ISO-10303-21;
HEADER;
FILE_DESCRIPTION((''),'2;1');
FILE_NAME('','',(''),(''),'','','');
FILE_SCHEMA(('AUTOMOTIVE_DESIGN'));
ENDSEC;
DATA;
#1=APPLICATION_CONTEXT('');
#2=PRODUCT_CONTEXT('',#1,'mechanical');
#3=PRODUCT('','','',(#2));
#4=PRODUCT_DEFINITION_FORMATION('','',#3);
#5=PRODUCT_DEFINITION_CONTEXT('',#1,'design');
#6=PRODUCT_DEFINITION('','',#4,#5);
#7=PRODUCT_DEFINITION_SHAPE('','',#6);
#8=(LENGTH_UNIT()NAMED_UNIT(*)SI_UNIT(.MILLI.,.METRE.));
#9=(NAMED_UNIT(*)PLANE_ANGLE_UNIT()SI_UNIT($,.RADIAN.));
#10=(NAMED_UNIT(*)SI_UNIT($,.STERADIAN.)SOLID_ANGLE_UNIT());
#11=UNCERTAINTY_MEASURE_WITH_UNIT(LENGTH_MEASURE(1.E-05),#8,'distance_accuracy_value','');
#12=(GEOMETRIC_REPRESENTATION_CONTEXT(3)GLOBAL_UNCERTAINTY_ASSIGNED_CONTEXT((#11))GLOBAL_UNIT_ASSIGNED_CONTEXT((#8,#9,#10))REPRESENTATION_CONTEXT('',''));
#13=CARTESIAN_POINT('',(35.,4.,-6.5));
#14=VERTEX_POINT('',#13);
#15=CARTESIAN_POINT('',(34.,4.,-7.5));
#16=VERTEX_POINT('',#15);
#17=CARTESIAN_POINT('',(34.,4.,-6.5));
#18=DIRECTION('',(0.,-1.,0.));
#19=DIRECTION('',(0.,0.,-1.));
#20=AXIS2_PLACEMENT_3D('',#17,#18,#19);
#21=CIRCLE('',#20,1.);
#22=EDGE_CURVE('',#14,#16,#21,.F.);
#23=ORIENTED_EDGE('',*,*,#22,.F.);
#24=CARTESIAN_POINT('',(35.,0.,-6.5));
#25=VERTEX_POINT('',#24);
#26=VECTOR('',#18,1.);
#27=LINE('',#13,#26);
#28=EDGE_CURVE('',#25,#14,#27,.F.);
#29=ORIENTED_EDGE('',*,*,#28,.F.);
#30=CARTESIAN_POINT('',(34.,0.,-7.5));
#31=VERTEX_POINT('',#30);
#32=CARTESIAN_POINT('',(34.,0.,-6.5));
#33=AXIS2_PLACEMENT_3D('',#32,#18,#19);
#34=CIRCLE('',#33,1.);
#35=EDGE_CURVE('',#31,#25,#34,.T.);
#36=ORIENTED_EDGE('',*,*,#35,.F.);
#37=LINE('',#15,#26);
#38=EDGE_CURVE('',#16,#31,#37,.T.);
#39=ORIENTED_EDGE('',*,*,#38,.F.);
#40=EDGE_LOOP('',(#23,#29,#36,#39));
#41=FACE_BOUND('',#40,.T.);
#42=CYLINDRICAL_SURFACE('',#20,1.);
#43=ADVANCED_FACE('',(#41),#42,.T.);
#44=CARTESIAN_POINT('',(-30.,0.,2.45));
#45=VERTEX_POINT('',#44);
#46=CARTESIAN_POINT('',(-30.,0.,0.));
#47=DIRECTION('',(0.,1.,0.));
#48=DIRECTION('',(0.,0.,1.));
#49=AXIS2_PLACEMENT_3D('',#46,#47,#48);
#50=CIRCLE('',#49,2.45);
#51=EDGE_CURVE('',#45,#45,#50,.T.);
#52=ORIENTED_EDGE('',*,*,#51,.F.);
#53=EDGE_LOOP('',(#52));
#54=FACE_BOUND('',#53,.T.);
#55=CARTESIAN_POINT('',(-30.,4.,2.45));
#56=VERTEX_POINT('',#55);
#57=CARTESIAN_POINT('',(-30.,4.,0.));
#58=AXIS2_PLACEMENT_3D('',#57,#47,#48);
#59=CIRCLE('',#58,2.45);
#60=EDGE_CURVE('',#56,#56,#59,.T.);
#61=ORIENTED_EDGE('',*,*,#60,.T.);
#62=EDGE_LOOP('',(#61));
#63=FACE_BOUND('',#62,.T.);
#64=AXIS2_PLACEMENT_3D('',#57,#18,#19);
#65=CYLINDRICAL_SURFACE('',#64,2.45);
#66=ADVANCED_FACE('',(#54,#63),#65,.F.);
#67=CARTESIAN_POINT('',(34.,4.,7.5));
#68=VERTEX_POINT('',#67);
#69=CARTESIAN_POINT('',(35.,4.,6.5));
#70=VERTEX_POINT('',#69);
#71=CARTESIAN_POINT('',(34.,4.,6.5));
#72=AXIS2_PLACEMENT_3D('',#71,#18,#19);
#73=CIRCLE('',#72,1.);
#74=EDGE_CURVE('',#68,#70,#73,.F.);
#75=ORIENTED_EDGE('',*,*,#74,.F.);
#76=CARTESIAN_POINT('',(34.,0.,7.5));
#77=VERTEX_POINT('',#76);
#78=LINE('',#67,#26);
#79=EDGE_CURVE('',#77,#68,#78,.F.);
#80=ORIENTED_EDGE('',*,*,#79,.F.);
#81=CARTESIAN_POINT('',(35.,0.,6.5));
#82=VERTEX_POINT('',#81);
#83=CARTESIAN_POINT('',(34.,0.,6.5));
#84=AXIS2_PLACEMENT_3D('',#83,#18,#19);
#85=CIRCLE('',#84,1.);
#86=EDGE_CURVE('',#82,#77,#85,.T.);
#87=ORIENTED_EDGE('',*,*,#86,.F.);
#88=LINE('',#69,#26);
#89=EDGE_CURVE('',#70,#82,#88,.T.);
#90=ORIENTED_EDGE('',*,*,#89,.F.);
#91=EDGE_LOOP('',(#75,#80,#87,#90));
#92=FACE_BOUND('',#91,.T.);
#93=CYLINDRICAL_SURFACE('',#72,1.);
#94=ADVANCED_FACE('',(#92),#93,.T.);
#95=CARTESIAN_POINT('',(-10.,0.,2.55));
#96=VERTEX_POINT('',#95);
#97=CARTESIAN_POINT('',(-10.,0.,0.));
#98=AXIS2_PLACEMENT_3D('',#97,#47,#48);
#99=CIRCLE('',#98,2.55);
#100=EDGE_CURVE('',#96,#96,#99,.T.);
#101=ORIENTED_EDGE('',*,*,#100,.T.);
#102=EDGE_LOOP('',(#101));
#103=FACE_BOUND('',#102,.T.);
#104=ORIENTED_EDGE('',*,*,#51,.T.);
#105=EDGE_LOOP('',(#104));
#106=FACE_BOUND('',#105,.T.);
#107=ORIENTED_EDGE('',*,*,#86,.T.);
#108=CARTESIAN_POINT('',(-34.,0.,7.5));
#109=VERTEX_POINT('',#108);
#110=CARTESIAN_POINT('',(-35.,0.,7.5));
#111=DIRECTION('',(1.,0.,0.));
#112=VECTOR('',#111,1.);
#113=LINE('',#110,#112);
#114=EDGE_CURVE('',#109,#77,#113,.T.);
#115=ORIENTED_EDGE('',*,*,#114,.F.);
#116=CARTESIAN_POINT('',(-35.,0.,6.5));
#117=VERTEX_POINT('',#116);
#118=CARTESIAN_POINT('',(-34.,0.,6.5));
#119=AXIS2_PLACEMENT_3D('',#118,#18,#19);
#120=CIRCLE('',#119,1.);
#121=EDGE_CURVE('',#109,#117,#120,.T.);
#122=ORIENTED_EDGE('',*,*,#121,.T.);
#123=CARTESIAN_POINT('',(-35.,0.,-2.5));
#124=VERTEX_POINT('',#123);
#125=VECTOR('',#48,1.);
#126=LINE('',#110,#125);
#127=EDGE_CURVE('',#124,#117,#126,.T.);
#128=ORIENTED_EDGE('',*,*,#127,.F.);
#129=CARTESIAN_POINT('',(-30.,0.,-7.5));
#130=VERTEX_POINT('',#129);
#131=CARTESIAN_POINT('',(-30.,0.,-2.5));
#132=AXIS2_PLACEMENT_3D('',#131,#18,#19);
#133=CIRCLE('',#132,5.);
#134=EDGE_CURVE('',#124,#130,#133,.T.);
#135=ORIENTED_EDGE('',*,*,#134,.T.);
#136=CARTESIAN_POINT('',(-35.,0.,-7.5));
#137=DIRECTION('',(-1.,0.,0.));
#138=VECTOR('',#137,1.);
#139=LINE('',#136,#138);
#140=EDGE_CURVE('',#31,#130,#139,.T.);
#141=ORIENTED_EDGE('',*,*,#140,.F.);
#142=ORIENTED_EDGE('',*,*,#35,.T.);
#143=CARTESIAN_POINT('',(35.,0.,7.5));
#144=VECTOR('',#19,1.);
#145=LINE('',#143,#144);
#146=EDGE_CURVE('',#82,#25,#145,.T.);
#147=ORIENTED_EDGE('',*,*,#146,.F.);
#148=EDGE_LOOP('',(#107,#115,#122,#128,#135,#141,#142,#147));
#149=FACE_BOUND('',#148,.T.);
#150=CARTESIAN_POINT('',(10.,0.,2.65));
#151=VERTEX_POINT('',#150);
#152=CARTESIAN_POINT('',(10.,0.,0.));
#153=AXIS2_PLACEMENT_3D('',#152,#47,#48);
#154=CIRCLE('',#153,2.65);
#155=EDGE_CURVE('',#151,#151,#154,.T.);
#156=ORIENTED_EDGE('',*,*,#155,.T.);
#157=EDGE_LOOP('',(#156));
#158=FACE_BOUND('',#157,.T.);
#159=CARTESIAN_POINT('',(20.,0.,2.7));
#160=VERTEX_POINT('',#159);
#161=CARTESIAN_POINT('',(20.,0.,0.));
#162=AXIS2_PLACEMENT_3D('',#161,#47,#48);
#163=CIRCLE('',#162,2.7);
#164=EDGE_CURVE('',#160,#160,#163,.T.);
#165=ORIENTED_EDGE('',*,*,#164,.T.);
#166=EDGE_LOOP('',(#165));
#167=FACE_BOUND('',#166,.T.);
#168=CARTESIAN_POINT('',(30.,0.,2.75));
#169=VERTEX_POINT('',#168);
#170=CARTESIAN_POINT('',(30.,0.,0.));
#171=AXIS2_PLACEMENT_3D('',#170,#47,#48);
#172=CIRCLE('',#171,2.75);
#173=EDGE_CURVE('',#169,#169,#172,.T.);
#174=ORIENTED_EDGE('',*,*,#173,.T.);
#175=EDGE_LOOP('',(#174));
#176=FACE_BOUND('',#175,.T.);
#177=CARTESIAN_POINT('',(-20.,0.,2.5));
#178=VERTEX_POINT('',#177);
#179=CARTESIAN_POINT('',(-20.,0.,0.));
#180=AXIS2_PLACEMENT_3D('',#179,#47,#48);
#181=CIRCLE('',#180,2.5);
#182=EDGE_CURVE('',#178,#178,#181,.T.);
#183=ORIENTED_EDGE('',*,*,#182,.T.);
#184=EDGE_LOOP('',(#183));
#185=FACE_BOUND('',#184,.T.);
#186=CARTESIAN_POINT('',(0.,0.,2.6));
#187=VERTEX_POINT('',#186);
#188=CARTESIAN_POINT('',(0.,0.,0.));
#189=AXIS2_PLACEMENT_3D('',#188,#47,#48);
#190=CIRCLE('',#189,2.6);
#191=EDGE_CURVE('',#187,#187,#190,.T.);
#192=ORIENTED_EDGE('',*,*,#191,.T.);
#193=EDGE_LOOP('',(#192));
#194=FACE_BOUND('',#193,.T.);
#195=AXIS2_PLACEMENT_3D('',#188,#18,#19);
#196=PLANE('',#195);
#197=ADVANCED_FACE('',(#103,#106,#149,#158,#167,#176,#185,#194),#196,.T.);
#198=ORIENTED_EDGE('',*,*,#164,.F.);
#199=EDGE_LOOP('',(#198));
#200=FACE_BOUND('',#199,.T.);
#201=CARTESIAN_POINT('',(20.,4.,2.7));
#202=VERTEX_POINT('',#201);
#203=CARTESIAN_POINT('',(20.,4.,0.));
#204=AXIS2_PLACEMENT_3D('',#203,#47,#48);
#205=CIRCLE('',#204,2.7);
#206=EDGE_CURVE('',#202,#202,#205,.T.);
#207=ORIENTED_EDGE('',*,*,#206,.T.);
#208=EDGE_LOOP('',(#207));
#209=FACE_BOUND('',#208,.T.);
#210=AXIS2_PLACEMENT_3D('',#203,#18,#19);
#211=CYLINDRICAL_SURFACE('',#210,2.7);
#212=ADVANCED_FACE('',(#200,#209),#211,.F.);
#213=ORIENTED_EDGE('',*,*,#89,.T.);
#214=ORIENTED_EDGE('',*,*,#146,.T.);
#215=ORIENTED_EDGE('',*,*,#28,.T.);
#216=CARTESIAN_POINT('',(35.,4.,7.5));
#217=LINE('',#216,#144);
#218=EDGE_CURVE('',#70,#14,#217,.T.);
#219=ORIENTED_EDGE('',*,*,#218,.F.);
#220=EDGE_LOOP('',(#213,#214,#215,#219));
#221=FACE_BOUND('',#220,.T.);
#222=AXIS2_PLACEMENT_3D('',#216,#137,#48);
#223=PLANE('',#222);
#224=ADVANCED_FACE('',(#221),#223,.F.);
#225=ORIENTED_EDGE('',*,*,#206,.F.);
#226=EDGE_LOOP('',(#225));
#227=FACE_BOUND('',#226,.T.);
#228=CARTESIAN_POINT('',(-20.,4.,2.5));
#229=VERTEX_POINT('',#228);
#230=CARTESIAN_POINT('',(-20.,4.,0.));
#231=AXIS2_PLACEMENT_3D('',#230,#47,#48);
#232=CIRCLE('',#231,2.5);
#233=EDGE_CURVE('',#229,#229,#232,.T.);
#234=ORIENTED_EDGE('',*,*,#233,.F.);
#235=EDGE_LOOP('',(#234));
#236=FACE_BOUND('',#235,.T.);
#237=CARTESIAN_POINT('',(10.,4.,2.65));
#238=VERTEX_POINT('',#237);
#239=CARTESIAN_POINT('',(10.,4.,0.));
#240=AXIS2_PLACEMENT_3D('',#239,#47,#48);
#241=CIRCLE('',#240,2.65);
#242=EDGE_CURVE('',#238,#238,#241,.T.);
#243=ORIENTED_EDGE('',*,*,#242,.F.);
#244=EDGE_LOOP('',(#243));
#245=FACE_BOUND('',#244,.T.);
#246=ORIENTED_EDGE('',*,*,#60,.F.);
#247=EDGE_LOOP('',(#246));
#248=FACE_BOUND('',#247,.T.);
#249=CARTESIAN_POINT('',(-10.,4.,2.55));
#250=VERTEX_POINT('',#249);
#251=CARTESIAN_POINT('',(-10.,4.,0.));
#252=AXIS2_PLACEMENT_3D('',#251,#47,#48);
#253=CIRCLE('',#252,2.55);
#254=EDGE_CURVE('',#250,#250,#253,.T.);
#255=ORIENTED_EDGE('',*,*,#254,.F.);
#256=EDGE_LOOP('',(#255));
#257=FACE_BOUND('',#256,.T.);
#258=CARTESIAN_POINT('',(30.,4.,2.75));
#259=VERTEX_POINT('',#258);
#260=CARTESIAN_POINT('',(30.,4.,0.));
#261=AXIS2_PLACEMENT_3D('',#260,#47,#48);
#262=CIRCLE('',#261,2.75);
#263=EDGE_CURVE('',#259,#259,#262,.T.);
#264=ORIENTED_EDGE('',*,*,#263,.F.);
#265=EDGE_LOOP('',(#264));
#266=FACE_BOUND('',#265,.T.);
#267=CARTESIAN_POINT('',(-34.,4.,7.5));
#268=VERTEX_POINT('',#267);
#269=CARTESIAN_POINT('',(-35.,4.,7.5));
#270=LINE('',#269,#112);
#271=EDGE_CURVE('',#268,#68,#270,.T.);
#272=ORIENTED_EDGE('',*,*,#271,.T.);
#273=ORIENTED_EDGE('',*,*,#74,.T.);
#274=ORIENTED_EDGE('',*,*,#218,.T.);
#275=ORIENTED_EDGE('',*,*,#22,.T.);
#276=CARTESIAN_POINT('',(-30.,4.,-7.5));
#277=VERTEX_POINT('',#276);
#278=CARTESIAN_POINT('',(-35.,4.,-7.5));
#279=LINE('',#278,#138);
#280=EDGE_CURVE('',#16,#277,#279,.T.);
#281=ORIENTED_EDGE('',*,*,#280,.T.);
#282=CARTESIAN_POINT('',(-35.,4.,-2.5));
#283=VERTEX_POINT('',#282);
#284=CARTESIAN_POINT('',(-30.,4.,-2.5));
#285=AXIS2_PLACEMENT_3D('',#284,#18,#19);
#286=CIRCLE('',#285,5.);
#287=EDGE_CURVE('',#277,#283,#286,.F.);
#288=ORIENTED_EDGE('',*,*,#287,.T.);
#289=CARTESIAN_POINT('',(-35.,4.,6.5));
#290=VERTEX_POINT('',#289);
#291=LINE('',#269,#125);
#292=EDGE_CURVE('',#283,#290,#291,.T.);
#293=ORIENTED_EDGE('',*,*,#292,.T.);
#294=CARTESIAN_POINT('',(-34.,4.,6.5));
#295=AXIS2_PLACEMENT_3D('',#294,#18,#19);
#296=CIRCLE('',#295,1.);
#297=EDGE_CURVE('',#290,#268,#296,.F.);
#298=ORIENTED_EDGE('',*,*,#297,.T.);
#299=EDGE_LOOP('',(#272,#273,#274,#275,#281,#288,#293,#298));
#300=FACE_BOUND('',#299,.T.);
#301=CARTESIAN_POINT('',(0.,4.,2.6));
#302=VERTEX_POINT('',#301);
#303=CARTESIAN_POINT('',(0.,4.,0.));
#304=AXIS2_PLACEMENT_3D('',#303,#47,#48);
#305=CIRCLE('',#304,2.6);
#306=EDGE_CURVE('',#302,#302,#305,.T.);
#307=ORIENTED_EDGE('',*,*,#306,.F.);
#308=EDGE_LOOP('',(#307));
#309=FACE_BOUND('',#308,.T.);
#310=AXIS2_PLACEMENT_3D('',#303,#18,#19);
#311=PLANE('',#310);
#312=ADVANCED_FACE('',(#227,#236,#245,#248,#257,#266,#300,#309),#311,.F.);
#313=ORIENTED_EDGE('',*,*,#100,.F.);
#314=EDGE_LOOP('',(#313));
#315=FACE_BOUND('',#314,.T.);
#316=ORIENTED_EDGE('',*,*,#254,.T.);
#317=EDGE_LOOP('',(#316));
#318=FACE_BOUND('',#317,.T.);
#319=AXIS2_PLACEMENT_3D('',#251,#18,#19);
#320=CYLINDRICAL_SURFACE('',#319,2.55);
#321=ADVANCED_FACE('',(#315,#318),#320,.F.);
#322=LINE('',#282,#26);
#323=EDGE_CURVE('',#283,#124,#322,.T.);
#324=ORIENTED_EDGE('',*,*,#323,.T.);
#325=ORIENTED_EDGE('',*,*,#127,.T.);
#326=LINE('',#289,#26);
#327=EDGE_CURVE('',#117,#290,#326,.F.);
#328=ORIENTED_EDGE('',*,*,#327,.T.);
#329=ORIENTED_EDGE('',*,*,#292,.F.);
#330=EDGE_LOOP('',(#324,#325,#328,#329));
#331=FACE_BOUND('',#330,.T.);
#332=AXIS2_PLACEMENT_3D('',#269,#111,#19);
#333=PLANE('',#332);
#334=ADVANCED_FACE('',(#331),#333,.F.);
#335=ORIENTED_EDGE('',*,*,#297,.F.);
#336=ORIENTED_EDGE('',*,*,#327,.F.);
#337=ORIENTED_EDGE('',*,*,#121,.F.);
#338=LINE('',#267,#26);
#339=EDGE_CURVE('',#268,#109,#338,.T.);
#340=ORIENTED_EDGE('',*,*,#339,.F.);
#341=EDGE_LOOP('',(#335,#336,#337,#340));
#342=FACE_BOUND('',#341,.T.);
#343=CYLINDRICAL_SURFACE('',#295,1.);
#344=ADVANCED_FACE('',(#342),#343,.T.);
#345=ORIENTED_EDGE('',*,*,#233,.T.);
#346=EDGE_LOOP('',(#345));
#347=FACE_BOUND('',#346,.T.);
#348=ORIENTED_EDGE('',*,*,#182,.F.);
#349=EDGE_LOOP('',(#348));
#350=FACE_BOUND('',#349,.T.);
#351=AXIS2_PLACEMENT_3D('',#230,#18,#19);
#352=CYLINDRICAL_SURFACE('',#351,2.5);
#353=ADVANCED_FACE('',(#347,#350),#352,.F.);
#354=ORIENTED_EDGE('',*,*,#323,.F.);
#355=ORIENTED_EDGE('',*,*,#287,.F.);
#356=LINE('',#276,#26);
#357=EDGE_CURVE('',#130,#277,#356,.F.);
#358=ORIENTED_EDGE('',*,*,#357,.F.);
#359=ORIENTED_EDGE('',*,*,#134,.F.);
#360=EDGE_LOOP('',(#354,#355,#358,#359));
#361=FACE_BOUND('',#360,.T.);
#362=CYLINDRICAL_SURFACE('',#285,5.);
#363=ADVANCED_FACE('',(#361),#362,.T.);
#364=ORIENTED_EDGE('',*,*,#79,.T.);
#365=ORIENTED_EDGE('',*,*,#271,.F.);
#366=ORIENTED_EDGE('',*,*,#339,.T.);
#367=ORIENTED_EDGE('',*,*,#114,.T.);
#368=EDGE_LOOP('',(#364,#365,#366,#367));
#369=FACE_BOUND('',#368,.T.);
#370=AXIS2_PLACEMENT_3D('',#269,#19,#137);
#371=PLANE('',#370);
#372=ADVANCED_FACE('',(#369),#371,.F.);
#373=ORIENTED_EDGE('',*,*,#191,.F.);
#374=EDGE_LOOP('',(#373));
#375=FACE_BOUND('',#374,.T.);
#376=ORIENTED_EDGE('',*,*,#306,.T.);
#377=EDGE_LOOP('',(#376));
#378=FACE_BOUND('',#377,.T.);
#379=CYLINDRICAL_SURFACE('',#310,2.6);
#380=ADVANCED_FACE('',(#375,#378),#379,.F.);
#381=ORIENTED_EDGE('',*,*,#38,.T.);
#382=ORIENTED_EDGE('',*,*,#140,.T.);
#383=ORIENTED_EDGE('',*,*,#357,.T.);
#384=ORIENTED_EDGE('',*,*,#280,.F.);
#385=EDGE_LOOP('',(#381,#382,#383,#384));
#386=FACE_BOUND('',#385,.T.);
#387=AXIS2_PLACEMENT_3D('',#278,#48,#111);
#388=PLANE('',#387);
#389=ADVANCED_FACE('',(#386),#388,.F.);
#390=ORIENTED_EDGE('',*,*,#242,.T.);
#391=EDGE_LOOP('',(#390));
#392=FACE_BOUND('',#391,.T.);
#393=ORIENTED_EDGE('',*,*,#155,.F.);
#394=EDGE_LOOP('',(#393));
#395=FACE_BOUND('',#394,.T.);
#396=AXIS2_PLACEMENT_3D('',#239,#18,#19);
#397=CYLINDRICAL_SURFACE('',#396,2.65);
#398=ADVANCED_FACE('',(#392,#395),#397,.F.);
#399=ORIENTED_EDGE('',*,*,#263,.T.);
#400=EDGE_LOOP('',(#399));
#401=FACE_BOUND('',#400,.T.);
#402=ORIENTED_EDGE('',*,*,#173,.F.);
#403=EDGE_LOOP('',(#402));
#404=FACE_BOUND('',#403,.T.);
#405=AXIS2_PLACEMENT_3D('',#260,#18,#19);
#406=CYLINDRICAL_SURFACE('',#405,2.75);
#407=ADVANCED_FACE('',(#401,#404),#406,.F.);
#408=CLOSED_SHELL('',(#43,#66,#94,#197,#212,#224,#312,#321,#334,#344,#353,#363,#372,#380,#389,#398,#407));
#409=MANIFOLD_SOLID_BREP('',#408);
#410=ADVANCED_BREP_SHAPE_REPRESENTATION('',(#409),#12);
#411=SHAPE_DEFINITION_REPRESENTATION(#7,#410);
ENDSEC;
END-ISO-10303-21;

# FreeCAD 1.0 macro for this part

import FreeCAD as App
import Part
import Sketcher
Q = App.Units.Quantity


def edges_at(feature, points):
    """Names of the edges that pass closest to the given points."""
    edges = feature.Shape.Edges
    near = lambda p: min(range(len(edges)), key=lambda i: edges[i].distToShape(Part.Vertex(*p))[0])
    return sorted({f"Edge{near(p) + 1}" for p in points})

doc = App.newDocument("Part")
params = doc.addObject("Spreadsheet::Sheet", "Params")
for row, (alias, value) in enumerate([
    ("sketch1_diameter", "5 mm"),
    ("sketch1_diameter2", "4.9 mm"),
    ("sketch1_diameter3", "5.1 mm"),
    ("sketch1_diameter4", "5.2 mm"),
    ("sketch1_diameter5", "5.3 mm"),
    ("pad1_length", "4 mm"),
    ("fillet_radius", "5 mm"),
    ("fillet2_radius", "1 mm"),
], start=1):
    params.set(f"A{row}", alias)
    params.set(f"B{row}", "=" + value)
    params.setAlias(f"B{row}", alias)

body = doc.addObject("PartDesign::Body", "Body")

# Sketch on XZ plane
sketch1 = body.newObject("Sketcher::SketchObject", "Sketch")
sketch1.AttachmentSupport = (doc.getObject("XZ_Plane"), [""])
sketch1.MapMode = "FlatFace"
sketch1.addGeometry([
    Part.LineSegment(App.Vector(-35, -7.5, 0), App.Vector(-35, 7.5, 0)),  # 0
    Part.LineSegment(App.Vector(-35, 7.5, 0), App.Vector(35, 7.5, 0)),  # 1
    Part.LineSegment(App.Vector(35, 7.5, 0), App.Vector(35, -7.5, 0)),  # 2
    Part.LineSegment(App.Vector(35, -7.5, 0), App.Vector(-35, -7.5, 0)),  # 3
    Part.Circle(App.Vector(-30, 0, 0), App.Vector(0, 0, 1), 2.45),  # 4
    Part.Circle(App.Vector(-20, 0, 0), App.Vector(0, 0, 1), 2.5),  # 5
    Part.Circle(App.Vector(-10, 0, 0), App.Vector(0, 0, 1), 2.55),  # 6
    Part.Circle(App.Vector(0, 0, 0), App.Vector(0, 0, 1), 2.6),  # 7
    Part.Circle(App.Vector(10, 0, 0), App.Vector(0, 0, 1), 2.65),  # 8
    Part.Circle(App.Vector(20, 0, 0), App.Vector(0, 0, 1), 2.7),  # 9
    Part.Circle(App.Vector(30, 0, 0), App.Vector(0, 0, 1), 2.75),  # 10
], False)
sketch1.addConstraint([
    Sketcher.Constraint("Coincident", 0, 2, 1, 1),
    Sketcher.Constraint("Coincident", 1, 2, 2, 1),
    Sketcher.Constraint("Coincident", 2, 2, 3, 1),
    Sketcher.Constraint("Coincident", 3, 2, 0, 1),
    Sketcher.Constraint("Vertical", 0),
    Sketcher.Constraint("Horizontal", 1),
    Sketcher.Constraint("Vertical", 2),
    Sketcher.Constraint("Horizontal", 3),
    Sketcher.Constraint("Coincident", 7, 3, -1, 1),
    Sketcher.Constraint("Symmetric", 6, 3, 8, 3, -1, 1),
    Sketcher.Constraint("Symmetric", 5, 3, 9, 3, -1, 1),
    Sketcher.Constraint("Symmetric", 4, 3, 10, 3, -1, 1),
    Sketcher.Constraint("Symmetric", 0, 2, 2, 2, -1, 1),
    Sketcher.Constraint("PointOnObject", 4, 3, -1),
    Sketcher.Constraint("PointOnObject", 5, 3, -1),
    Sketcher.Constraint("PointOnObject", 6, 3, -1),
    Sketcher.Constraint("Diameter", 5, Q("5 mm")),
    Sketcher.Constraint("Diameter", 4, Q("4.9 mm")),
    Sketcher.Constraint("Diameter", 6, Q("5.1 mm")),
    Sketcher.Constraint("Diameter", 7, Q("5.2 mm")),
    Sketcher.Constraint("Diameter", 8, Q("5.3 mm")),
    Sketcher.Constraint("Diameter", 9, Q("5.4 mm")),
    Sketcher.Constraint("Diameter", 10, Q("5.5 mm")),
    Sketcher.Constraint("DistanceX", 1, 1, 1, 2, Q("70 mm")),
    Sketcher.Constraint("DistanceY", 0, 1, 0, 2, Q("15 mm")),
    Sketcher.Constraint("DistanceX", 4, 3, -1, 1, Q("30 mm")),
    Sketcher.Constraint("DistanceX", 5, 3, -1, 1, Q("20 mm")),
    Sketcher.Constraint("DistanceX", 6, 3, -1, 1, Q("10 mm")),
])
sketch1.setExpression("Constraints[16]", "Params.sketch1_diameter")
sketch1.setExpression("Constraints[17]", "Params.sketch1_diameter2")
sketch1.setExpression("Constraints[18]", "Params.sketch1_diameter3")
sketch1.setExpression("Constraints[19]", "Params.sketch1_diameter4")
sketch1.setExpression("Constraints[20]", "Params.sketch1_diameter5")
pad1 = body.newObject("PartDesign::Pad", "Pad")
pad1.Profile = sketch1
pad1.setExpression("Length", "Params.pad1_length")
pad1.Reversed = True
doc.recompute()

fillet = body.newObject("PartDesign::Fillet", "Fillet")
fillet.Base = (pad1, edges_at(pad1, [(-35, 2, -7.5)]))
fillet.setExpression("Radius", "Params.fillet_radius")
doc.recompute()

fillet2 = body.newObject("PartDesign::Fillet", "Fillet001")
fillet2.Base = (fillet, edges_at(fillet, [(35, 2, 7.5), (-35, 2, 7.5), (35, 2, -7.5)]))
fillet2.setExpression("Radius", "Params.fillet2_radius")

doc.recompute()
